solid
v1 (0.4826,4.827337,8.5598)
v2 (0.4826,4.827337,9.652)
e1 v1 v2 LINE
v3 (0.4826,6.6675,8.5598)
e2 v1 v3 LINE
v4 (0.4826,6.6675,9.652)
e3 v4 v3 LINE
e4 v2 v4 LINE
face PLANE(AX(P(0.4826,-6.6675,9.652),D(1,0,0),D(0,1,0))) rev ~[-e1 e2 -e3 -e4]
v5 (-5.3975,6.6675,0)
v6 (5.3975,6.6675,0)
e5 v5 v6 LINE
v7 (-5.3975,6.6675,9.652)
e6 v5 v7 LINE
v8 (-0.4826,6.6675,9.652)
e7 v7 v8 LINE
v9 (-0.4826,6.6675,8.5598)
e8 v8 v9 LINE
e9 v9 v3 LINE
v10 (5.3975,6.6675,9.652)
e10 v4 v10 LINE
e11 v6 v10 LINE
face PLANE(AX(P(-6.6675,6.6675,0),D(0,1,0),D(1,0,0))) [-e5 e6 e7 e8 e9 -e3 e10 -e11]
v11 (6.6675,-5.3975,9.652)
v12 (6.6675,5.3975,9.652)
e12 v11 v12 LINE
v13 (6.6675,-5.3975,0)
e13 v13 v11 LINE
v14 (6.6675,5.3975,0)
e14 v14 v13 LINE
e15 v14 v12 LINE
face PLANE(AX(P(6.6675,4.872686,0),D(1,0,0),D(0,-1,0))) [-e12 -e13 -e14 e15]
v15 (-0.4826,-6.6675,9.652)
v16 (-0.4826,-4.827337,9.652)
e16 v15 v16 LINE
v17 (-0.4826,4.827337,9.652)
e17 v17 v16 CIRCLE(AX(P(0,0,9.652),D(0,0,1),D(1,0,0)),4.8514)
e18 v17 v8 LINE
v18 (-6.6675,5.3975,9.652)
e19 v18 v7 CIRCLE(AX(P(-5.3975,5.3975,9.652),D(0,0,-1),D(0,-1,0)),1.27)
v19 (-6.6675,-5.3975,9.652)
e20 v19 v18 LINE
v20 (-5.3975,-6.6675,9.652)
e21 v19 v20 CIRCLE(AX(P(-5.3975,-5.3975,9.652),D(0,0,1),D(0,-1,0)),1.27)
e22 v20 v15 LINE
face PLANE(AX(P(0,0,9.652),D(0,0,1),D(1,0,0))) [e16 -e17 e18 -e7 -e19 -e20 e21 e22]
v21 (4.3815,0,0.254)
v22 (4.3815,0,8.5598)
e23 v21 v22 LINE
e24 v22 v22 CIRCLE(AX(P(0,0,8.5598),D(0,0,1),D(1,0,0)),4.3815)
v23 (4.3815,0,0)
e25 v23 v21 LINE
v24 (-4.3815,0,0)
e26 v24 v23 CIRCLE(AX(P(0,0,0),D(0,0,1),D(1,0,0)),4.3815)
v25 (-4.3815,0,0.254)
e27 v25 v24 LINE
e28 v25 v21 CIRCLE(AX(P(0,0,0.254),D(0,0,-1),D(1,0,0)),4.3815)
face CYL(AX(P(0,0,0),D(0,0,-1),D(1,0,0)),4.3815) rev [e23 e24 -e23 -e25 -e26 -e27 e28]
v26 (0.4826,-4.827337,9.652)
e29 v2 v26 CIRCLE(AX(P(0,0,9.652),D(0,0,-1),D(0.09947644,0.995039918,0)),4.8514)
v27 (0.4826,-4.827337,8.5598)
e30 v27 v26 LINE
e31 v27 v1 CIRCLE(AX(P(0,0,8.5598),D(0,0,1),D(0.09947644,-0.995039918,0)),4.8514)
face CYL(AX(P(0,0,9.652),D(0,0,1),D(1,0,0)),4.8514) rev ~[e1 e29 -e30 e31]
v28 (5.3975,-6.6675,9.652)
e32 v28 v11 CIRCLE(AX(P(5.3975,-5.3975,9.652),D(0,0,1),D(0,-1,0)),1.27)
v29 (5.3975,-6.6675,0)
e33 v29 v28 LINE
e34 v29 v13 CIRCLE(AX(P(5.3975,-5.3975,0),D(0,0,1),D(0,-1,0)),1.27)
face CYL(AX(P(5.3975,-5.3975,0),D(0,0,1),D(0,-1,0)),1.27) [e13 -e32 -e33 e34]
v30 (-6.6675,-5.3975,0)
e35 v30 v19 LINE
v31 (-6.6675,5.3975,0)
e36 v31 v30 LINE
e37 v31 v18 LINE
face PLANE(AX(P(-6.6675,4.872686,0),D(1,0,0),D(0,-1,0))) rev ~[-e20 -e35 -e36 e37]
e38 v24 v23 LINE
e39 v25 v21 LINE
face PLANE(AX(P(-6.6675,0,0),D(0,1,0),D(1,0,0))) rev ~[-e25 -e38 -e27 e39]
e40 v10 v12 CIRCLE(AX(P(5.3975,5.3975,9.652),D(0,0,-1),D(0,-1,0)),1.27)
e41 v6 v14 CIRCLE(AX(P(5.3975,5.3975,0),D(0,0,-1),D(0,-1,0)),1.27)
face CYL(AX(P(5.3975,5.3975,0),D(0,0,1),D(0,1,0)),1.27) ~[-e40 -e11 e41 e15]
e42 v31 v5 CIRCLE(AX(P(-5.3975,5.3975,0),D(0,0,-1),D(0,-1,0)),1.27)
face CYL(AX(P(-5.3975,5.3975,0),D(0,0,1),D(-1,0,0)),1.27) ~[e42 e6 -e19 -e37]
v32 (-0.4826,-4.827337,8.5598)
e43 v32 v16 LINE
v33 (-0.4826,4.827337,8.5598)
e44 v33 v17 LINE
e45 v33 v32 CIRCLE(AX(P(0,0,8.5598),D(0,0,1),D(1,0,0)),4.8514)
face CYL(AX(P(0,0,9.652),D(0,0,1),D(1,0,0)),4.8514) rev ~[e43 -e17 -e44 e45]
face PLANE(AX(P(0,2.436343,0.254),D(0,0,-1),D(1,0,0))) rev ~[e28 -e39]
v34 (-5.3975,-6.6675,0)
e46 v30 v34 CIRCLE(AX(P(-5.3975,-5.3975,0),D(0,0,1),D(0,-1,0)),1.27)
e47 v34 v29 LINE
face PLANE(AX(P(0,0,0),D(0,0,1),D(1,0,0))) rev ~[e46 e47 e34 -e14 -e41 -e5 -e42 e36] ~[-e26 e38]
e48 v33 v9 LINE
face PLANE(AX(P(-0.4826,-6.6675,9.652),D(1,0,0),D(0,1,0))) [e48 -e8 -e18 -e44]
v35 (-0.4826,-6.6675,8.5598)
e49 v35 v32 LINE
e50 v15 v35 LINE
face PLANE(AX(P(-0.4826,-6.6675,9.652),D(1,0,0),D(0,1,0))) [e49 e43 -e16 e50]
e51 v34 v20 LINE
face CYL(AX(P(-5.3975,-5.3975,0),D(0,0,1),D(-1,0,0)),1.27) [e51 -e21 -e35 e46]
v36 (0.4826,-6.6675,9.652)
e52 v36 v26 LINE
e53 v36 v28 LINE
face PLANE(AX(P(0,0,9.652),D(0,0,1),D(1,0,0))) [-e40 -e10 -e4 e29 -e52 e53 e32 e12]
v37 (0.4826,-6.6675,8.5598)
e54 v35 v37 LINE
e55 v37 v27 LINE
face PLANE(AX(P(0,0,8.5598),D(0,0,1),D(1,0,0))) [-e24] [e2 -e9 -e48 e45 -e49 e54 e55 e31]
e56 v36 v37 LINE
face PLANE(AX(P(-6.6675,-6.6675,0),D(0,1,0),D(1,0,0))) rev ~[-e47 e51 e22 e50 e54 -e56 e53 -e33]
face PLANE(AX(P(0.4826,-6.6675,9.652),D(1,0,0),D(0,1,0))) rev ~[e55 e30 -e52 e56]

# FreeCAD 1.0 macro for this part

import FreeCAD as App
import Part
import Sketcher
from FreeCAD import Vector
Q = App.Units.Quantity


def edges_at(feature, points):
    """Names of the edges that pass closest to the given points."""
    edges = feature.Shape.Edges
    near = lambda p: min(range(len(edges)), key=lambda i: edges[i].distToShape(Part.Vertex(*p))[0])
    return sorted({f"Edge{near(p) + 1}" for p in points})


def add_polygon(sketch, points):
    """Adds a closed chain of lines whose ends are joined by coincident constraints."""
    first, n = sketch.GeometryCount, len(points)
    for a, b in zip(points, points[1:] + points[:1]):
        sketch.addGeometry(Part.LineSegment(App.Vector(*a, 0), App.Vector(*b, 0)), False)
    for i in range(n):
        sketch.addConstraint(Sketcher.Constraint("Coincident", first + i, 2, first + (i + 1) % n, 1))

doc = App.newDocument("Part")
body = doc.addObject("PartDesign::Body", "Body")

sketch1 = body.newObject("Sketcher::SketchObject", "Sketch")
sketch1.AttachmentSupport = (doc.getObject("XY_Plane"), [""])
sketch1.MapMode = "FlatFace"
add_polygon(sketch1, [(-6.7, 6.7), (-6.7, -6.7), (6.7, -6.7), (6.7, 6.7)])
sketch1.addGeometry(Part.Circle(Vector(0, 0, 0), Vector(0, 0, 1), 4.4), False)
sketch1.addConstraint([
    Sketcher.Constraint("Vertical", 0),
    Sketcher.Constraint("Horizontal", 1),
    Sketcher.Constraint("Vertical", 2),
    Sketcher.Constraint("Horizontal", 3),
    Sketcher.Constraint("Coincident", 4, 3, -1, 1),
    Sketcher.Constraint("Symmetric", 0, 2, 2, 2, -1, 1),
    Sketcher.Constraint("Equal", 3, 0),
    Sketcher.Constraint("Diameter", 4, Q("0.345 in")),
    Sketcher.Constraint("DistanceX", 1, 1, 1, 2, Q("0.525 in")),
])
pad1 = body.newObject("PartDesign::Pad", "Pad")
pad1.Profile = sketch1
pad1.Length = Q("0.38 in")

sketch2 = body.newObject("Sketcher::SketchObject", "Sketch001")
sketch2.AttachmentSupport = (doc.getObject("XY_Plane"), [""])
sketch2.MapMode = "FlatFace"
sketch2.AttachmentOffset = App.Placement(Vector(0, 0, 0.38 * 25.4), App.Rotation())
add_polygon(sketch2, [(-0.5, 6.7), (-0.5, -6.7), (0.5, -6.7), (0.5, 6.7)])
sketch2.addConstraint([
    Sketcher.Constraint("Vertical", 0),
    Sketcher.Constraint("Horizontal", 1),
    Sketcher.Constraint("Vertical", 2),
    Sketcher.Constraint("Horizontal", 3),
    Sketcher.Constraint("Symmetric", 0, 2, 2, 2, -1, 1),
    Sketcher.Constraint("DistanceX", 1, 1, 1, 2, Q("0.038 in")),
    Sketcher.Constraint("DistanceY", 0, 2, 0, 1, Q("0.525 in")),
])
pocket1 = body.newObject("PartDesign::Pocket", "Pocket")
pocket1.Profile = sketch2
pocket1.Length = Q("0.043 in")
doc.recompute()

fillet = body.newObject("PartDesign::Fillet", "Fillet")
fillet.Base = (pocket1, edges_at(pocket1, [
    (-6.668, -6.668, 4.826),
    (6.668, -6.668, 4.826),
    (6.668, 6.668, 4.826),
    (-6.668, 6.668, 4.826),
]))
fillet.Radius = Q("0.05 in")

sketch3 = body.newObject("Sketcher::SketchObject", "Sketch002")
sketch3.AttachmentSupport = (doc.getObject("XY_Plane"), [""])
sketch3.MapMode = "FlatFace"
sketch3.AttachmentOffset = App.Placement(Vector(0, 0, 0.38 * 25.4), App.Rotation())
sketch3.addGeometry(Part.Circle(Vector(0, 0, 0), Vector(0, 0, 1), 4.9), False)
sketch3.addConstraint([
    Sketcher.Constraint("Coincident", 0, 3, -1, 1),
    Sketcher.Constraint("Diameter", 0, Q("0.382 in")),
])
pocket2 = body.newObject("PartDesign::Pocket", "Pocket001")
pocket2.Profile = sketch3
pocket2.Length = Q("0.043 in")

sketch4 = body.newObject("Sketcher::SketchObject", "Sketch003")
sketch4.AttachmentSupport = (doc.getObject("XY_Plane"), [""])
sketch4.MapMode = "FlatFace"
add_polygon(sketch4, [(-6.7, 0), (-6.7, 4.9), (6.7, 4.9), (6.7, 0)])
sketch4.addConstraint([
    Sketcher.Constraint("Vertical", 0),
    Sketcher.Constraint("Horizontal", 1),
    Sketcher.Constraint("Vertical", 2),
    Sketcher.Constraint("Horizontal", 3),
    Sketcher.Constraint("Symmetric", 2, 2, 3, 2, -1, 1),
    Sketcher.Constraint("DistanceX", 1, 1, 1, 2, Q("0.525 in")),
    Sketcher.Constraint("DistanceY", 0, 1, 0, 2, 4.872686),
])
pad2 = body.newObject("PartDesign::Pad", "Pad001")
pad2.Profile = sketch4
pad2.Length = Q("0.01 in")

doc.recompute()
